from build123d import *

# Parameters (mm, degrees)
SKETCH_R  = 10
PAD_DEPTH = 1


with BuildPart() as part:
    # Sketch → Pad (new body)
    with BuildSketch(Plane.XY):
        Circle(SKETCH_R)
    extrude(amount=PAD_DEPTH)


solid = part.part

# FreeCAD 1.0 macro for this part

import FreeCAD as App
import Part
import Sketcher

V = App.Vector
Q = App.Units.Quantity

doc = App.newDocument("Part")
body = doc.addObject("PartDesign::Body", "Body")

sketch1 = doc.addObject("Sketcher::SketchObject", "Sketch")
body.addObject(sketch1)
sketch1.AttachmentSupport = (doc.XY_Plane, [""])
sketch1.MapMode = "FlatFace"
sketch1.addGeometry(Part.Circle(V(0, 0, 0), V(0, 0, 1), 10), False)
sketch1.addConstraint(Sketcher.Constraint("Coincident", 0, 3, -1, 1))
sketch1.addConstraint(Sketcher.Constraint("Diameter", 0, Q("20 mm")))
pad1 = doc.addObject("PartDesign::Pad", "Pad")
body.addObject(pad1)
pad1.Profile = sketch1
pad1.Length = 1

doc.recompute()
